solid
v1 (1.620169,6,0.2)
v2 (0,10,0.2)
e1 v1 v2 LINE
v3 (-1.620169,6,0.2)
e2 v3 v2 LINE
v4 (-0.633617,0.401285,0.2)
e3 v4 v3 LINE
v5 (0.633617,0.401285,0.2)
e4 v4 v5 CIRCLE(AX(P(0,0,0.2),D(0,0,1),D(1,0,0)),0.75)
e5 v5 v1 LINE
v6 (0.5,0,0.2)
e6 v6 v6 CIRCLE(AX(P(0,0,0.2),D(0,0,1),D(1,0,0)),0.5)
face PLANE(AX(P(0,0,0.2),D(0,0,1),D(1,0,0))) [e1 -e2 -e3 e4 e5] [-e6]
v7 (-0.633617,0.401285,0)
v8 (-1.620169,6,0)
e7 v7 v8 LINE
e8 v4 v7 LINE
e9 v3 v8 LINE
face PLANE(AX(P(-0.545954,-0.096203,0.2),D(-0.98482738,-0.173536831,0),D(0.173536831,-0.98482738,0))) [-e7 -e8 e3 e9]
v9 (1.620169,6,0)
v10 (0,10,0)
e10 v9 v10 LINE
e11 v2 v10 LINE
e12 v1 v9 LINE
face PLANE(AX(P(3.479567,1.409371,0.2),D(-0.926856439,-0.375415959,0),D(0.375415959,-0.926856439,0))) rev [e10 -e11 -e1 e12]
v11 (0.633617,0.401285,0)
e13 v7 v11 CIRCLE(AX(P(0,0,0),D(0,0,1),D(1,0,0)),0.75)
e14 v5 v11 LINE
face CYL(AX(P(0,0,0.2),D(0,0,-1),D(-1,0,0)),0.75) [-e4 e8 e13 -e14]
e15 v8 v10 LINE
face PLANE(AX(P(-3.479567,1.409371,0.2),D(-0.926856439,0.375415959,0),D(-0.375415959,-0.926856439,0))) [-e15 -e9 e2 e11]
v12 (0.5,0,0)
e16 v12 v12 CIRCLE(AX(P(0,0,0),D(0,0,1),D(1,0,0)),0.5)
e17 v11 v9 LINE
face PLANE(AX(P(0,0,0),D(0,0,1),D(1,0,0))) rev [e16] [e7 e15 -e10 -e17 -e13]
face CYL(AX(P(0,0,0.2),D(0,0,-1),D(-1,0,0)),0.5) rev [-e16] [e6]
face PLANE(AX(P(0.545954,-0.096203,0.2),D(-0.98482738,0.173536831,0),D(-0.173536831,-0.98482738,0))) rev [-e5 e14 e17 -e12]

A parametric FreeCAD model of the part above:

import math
import FreeCAD as App
import Part
import Sketcher

doc = App.newDocument("Part")
body = doc.addObject("PartDesign::Body", "Body")

sketch1 = body.newObject("Sketcher::SketchObject", "Sketch")
sketch1.AttachmentSupport = (doc.getObject("XY_Plane"), [""])
sketch1.MapMode = "FlatFace"
sketch1.addGeometry([
    Part.LineSegment(App.Vector(-1.6, 6, 0), App.Vector(-0.6, 0.4, 0)),
    Part.ArcOfCircle(Part.Circle(App.Vector(0, 0, 0), App.Vector(0, 0, 1), 0.8), math.radians(148), math.radians(392)),
    Part.LineSegment(App.Vector(0.6, 0.4, 0), App.Vector(1.6, 6, 0)),
    Part.LineSegment(App.Vector(1.6, 6, 0), App.Vector(0, 10, 0)),
    Part.LineSegment(App.Vector(0, 10, 0), App.Vector(-1.6, 6, 0)),
    Part.Circle(App.Vector(0, 0, 0), App.Vector(0, 0, 1), 0.5),
], False)
sketch1.addConstraint([
    Sketcher.Constraint("Coincident", 0, 2, 1, 1),
    Sketcher.Constraint("Coincident", 1, 2, 2, 1),
    Sketcher.Constraint("Coincident", 2, 2, 3, 1),
    Sketcher.Constraint("Coincident", 3, 2, 4, 1),
    Sketcher.Constraint("Coincident", 4, 2, 0, 1),
    Sketcher.Constraint("Coincident", 1, 3, -1, 1),
    Sketcher.Constraint("Coincident", 5, 3, -1, 1),
    Sketcher.Constraint("Symmetric", 2, 2, 4, 2, -2),
    Sketcher.Constraint("PointOnObject", 3, 2, -2),
    Sketcher.Constraint("Horizontal", 0, 2, 1, 2),
    Sketcher.Constraint("Diameter", 5, 1.0),
    Sketcher.Constraint("Radius", 1, 0.75),
    Sketcher.Constraint("DistanceY", -1, 1, 2, 2, 6.0),
    Sketcher.Constraint("DistanceY", -1, 1, 3, 2, 10.0),
    Sketcher.Constraint("Distance", 0, 5.684971),
    Sketcher.Constraint("DistanceX", -1, 1, 2, 2, 1.620169),
])
pad1 = body.newObject("PartDesign::Pad", "Pad")
pad1.Profile = sketch1
pad1.Length = 0.2

doc.recompute()
